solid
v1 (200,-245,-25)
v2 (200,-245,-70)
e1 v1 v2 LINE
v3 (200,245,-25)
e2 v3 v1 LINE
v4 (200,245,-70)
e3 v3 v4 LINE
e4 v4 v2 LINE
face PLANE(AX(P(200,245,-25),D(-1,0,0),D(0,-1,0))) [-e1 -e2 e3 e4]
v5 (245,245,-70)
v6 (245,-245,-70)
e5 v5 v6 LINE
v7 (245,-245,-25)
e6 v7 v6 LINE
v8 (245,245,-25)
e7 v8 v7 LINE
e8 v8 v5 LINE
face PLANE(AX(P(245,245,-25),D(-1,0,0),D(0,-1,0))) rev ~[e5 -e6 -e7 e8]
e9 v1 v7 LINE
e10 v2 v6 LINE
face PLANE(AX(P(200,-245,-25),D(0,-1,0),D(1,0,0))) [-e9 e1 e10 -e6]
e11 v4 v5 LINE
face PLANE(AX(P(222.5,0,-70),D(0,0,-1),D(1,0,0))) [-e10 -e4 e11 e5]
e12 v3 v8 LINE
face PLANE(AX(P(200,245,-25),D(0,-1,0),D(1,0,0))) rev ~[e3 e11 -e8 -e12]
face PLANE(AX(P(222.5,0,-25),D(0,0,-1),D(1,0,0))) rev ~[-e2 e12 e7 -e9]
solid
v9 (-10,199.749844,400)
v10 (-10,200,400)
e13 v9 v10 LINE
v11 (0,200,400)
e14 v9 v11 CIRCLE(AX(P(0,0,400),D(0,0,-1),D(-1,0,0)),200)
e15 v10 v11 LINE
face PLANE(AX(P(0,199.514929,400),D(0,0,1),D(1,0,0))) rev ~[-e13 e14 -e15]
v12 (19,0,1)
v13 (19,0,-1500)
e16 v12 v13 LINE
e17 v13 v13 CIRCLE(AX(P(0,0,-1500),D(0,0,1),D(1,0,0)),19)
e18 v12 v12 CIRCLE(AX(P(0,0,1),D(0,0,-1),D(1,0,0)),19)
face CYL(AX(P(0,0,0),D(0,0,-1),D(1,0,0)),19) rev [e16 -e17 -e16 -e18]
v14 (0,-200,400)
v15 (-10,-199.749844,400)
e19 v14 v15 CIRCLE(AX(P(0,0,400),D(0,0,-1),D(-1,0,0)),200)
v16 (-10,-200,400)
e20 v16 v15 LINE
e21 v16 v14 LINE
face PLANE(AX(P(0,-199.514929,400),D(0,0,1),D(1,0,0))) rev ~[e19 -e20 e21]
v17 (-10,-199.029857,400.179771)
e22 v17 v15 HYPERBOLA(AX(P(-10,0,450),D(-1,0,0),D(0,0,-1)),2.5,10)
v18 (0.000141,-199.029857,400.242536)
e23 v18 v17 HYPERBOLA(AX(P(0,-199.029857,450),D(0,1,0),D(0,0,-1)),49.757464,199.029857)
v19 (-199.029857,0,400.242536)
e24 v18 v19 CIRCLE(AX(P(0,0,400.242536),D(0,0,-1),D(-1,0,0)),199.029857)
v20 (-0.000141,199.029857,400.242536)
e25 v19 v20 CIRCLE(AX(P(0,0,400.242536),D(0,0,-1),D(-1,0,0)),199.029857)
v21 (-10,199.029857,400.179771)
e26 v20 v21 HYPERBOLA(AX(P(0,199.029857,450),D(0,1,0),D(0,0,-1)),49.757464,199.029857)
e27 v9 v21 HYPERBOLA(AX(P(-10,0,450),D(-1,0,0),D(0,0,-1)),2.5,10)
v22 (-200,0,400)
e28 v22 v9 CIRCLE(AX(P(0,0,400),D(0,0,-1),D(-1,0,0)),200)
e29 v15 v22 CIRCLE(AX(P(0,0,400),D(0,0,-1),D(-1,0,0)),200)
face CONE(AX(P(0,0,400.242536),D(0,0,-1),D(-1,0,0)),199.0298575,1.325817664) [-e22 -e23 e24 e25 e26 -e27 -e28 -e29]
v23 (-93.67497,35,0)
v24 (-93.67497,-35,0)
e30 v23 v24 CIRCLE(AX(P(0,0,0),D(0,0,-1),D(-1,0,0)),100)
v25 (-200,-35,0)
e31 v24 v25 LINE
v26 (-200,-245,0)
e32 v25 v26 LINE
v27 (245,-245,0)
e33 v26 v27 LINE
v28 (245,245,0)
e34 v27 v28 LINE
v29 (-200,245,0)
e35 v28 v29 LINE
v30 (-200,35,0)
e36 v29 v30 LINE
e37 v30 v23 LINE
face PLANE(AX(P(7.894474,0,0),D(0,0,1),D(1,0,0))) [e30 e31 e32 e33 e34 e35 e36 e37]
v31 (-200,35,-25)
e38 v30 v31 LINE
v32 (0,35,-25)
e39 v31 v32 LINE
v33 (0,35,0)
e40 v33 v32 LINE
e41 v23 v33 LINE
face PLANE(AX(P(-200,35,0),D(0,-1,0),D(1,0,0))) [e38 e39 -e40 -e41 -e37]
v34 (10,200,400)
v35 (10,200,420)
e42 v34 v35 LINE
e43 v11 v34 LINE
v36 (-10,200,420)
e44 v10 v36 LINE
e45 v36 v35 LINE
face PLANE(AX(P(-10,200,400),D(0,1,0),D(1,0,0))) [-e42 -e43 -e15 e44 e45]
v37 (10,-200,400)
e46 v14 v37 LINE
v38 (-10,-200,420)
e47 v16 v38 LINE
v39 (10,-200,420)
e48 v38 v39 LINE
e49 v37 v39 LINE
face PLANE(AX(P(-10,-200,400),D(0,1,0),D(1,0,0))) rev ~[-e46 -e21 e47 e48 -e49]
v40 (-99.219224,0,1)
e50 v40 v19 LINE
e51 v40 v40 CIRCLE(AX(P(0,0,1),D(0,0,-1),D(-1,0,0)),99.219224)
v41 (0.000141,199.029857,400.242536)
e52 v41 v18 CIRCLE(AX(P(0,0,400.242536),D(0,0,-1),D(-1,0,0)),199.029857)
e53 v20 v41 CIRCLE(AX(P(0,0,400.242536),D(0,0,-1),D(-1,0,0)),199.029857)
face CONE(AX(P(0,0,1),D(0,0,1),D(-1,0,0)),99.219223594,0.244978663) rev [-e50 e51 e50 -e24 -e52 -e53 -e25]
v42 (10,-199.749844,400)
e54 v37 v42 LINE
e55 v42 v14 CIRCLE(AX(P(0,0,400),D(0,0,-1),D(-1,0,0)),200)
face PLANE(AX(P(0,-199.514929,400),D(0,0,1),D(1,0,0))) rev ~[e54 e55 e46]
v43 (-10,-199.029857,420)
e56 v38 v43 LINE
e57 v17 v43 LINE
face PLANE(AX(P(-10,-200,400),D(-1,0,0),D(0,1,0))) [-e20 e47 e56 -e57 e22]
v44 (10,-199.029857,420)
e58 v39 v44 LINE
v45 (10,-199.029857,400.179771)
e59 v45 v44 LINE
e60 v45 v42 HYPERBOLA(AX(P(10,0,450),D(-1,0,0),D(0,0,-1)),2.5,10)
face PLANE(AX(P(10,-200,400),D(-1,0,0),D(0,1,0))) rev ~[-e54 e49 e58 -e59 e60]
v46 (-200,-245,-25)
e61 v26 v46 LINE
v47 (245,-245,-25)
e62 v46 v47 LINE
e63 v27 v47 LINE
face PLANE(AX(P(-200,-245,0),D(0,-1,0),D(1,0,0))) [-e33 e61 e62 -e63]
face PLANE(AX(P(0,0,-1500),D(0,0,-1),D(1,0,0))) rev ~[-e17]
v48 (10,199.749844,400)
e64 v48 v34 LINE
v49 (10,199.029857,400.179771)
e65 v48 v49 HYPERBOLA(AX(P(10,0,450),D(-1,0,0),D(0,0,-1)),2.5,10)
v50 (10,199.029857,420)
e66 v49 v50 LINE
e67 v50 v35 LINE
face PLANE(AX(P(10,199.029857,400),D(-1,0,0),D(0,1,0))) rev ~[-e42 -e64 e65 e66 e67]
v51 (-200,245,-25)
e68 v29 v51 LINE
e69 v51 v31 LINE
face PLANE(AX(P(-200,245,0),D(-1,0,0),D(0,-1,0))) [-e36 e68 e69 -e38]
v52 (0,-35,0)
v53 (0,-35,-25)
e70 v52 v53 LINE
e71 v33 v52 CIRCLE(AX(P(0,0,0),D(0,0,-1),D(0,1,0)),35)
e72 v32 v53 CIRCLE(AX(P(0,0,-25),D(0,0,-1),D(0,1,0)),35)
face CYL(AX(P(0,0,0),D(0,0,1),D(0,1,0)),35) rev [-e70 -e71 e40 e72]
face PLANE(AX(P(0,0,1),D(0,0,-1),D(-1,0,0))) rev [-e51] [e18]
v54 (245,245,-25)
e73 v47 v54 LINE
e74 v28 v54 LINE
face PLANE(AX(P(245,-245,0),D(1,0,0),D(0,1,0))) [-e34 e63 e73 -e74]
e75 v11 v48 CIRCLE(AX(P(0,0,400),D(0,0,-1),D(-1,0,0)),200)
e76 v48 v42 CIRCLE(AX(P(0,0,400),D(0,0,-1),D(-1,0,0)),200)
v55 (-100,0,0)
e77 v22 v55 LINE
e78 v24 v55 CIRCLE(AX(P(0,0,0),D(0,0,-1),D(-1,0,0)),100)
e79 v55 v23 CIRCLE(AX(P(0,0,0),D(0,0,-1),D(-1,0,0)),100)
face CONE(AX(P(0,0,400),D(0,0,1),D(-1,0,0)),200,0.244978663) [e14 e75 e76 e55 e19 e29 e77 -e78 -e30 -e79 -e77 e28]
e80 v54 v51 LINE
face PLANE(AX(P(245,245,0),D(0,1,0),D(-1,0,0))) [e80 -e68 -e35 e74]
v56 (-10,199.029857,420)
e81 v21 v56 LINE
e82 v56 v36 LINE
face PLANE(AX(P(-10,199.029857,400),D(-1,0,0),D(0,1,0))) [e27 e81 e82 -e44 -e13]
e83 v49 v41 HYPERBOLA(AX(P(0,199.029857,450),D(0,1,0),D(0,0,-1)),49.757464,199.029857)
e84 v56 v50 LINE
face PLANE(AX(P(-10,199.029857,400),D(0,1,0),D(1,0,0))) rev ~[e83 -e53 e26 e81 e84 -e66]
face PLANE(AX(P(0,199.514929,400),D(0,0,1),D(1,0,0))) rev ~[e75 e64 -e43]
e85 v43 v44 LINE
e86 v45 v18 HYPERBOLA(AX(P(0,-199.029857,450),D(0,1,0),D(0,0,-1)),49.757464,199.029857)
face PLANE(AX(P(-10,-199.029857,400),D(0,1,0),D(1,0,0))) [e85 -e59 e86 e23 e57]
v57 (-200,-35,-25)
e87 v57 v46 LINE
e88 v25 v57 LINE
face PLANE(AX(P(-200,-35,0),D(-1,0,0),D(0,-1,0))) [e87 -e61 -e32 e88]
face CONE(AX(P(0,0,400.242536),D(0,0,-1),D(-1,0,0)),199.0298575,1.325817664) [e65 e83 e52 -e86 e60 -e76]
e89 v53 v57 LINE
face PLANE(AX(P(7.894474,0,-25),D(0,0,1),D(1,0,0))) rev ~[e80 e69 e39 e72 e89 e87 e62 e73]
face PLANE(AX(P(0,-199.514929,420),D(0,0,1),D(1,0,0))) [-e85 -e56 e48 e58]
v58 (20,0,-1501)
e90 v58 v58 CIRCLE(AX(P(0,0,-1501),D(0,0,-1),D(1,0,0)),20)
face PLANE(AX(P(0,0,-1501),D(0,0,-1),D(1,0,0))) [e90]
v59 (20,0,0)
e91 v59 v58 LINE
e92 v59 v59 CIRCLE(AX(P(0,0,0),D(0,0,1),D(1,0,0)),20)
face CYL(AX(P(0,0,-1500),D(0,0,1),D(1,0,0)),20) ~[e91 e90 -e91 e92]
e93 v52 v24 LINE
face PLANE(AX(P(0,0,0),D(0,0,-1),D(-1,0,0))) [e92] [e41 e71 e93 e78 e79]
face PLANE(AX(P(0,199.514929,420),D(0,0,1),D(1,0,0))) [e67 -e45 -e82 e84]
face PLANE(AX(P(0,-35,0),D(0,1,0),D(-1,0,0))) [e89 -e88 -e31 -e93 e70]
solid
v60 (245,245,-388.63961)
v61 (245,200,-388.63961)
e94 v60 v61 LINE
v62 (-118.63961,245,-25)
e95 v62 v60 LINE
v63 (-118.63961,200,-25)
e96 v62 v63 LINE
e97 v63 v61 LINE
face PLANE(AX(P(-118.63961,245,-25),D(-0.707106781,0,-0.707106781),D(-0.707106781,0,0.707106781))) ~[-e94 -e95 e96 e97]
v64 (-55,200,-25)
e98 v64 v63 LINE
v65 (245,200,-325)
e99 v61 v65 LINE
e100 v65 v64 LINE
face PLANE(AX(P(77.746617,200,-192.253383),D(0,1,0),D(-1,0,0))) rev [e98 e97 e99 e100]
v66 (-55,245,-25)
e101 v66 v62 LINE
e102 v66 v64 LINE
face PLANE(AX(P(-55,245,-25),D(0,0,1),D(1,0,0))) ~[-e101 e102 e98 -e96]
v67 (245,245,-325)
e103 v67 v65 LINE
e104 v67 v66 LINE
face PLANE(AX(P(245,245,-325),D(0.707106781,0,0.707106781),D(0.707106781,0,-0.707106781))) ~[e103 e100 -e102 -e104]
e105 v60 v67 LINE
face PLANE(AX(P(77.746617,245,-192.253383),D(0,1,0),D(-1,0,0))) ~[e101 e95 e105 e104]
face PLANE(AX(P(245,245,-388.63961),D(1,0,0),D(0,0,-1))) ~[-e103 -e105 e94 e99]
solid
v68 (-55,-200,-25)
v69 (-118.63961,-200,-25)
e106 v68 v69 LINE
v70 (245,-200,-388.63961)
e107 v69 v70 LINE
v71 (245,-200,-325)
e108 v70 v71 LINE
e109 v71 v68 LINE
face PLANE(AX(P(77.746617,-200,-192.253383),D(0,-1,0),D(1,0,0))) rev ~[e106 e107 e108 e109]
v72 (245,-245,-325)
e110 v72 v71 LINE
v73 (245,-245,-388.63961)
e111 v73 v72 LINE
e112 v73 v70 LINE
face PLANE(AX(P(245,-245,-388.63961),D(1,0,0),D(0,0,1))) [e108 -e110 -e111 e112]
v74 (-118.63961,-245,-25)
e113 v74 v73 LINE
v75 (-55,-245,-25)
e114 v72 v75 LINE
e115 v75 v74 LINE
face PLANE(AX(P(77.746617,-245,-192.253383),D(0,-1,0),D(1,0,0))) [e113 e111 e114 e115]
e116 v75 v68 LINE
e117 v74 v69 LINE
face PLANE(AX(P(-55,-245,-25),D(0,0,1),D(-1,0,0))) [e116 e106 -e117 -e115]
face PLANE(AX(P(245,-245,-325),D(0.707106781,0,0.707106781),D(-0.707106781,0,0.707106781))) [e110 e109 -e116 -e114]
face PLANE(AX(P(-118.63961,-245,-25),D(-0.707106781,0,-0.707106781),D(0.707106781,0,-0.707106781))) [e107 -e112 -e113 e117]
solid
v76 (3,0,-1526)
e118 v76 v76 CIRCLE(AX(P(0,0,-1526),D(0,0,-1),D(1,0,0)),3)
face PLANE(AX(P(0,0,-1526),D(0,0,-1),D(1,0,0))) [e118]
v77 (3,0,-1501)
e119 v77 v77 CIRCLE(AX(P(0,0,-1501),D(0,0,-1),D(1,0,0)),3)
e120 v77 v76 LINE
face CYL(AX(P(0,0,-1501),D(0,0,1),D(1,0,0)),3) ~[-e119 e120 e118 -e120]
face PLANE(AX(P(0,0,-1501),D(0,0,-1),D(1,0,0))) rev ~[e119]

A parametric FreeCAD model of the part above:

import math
import FreeCAD as App
import Part
import Sketcher

V = App.Vector


def add_polygon(sketch, points):
    """Adds a closed chain of lines whose ends are joined by coincident constraints."""
    first, n = sketch.GeometryCount, len(points)
    for a, b in zip(points, points[1:] + points[:1]):
        sketch.addGeometry(Part.LineSegment(App.Vector(*a, 0), App.Vector(*b, 0)), False)
    for i in range(n):
        sketch.addConstraint(Sketcher.Constraint("Coincident", first + i, 2, first + (i + 1) % n, 1))

doc = App.newDocument("Part")
body = doc.addObject("PartDesign::Body", "Body")

sketch1 = body.newObject("Sketcher::SketchObject", "Sketch")
sketch1.AttachmentSupport = (doc.getObject("XZ_Plane"), [""])
sketch1.MapMode = "FlatFace"
add_polygon(sketch1, [(-199.029857, 400.242536), (-200, 400), (-100, 0), (0, 0), (0, 1), (-99.219224, 1)])
sketch1.addConstraint([
    Sketcher.Constraint("Horizontal", 2),
    Sketcher.Constraint("Vertical", 3),
    Sketcher.Constraint("Horizontal", 4),
    Sketcher.Constraint("Coincident", 2, 2, -1, 1),
    Sketcher.Constraint("Perpendicular", 0, 1),
    Sketcher.Constraint("Parallel", 1, 5),
    Sketcher.Constraint("DistanceX", 2, 1, 2, 2, 100.0),
    Sketcher.Constraint("DistanceY", 3, 1, 3, 2, 1.0),
    Sketcher.Constraint("Distance", 0, 1.0),
    Sketcher.Constraint("DistanceX", 0, 2, -1, 1, 200.0),
    Sketcher.Constraint("DistanceY", -1, 1, 0, 2, 400.0),
])
revolution = body.newObject("PartDesign::Revolution", "Revolution")
revolution.Profile = sketch1
revolution.ReferenceAxis = (sketch1, ["V_Axis"])
revolution.Angle = 360

sketch2 = body.newObject("Sketcher::SketchObject", "Sketch001")
sketch2.AttachmentSupport = (doc.getObject("XY_Plane"), [""])
sketch2.MapMode = "FlatFace"
sketch2.addGeometry([
    Part.Circle(V(0, 0, 0), V(0, 0, 1), 20),
    Part.Circle(V(0, 0, 0), V(0, 0, 1), 19),
], False)
sketch2.addConstraint([
    Sketcher.Constraint("Coincident", 0, 3, -1, 1),
    Sketcher.Constraint("Coincident", 1, 3, -1, 1),
    Sketcher.Constraint("Diameter", 0, 40.0),
    Sketcher.Constraint("Diameter", 1, 38.0),
])
pad1 = body.newObject("PartDesign::Pad", "Pad")
pad1.Profile = sketch2
pad1.Length = 1500
pad1.Reversed = True

sketch3 = body.newObject("Sketcher::SketchObject", "Sketch002")
sketch3.AttachmentSupport = (doc.getObject("XY_Plane"), [""])
sketch3.MapMode = "FlatFace"
sketch3.addGeometry(Part.Circle(V(0, 0, 0), V(0, 0, 1), 19), False)
sketch3.addConstraint([
    Sketcher.Constraint("Coincident", 0, 3, -1, 1),
    Sketcher.Constraint("Diameter", 0, 38.0),
])
pocket1 = body.newObject("PartDesign::Pocket", "Pocket")
pocket1.Profile = sketch3
pocket1.Type = "ThroughAll"
pocket1.Reversed = True

sketch4 = body.newObject("Sketcher::SketchObject", "Sketch003")
sketch4.AttachmentSupport = (doc.getObject("XY_Plane"), [""])
sketch4.MapMode = "FlatFace"
sketch4.AttachmentOffset = App.Placement(V(0, 0, 400), App.Rotation())
add_polygon(sketch4, [(-10, -199.029857), (-10, -200), (10, -200), (10, -199.029857)])
add_polygon(sketch4, [(-10, 200), (-10, 199.029857), (10, 199.029857), (10, 200)])
sketch4.addConstraint([
    Sketcher.Constraint("Vertical", 0),
    Sketcher.Constraint("Horizontal", 1),
    Sketcher.Constraint("Vertical", 2),
    Sketcher.Constraint("Horizontal", 3),
    Sketcher.Constraint("Vertical", 4),
    Sketcher.Constraint("Horizontal", 5),
    Sketcher.Constraint("Vertical", 6),
    Sketcher.Constraint("Horizontal", 7),
    Sketcher.Constraint("Symmetric", 2, 2, 4, 2, -1, 1),
    Sketcher.Constraint("Symmetric", 0, 2, 6, 2, -1, 1),
    Sketcher.Constraint("Vertical", 3, 2, 4, 2),
    Sketcher.Constraint("DistanceX", 1, 1, 1, 2, 20.0),
    Sketcher.Constraint("DistanceY", 0, 2, -1, 1, 200.0),
    Sketcher.Constraint("DistanceY", 0, 2, 0, 1, 0.970143),
])
pad2 = body.newObject("PartDesign::Pad", "Pad001")
pad2.Profile = sketch4
pad2.Length = 20

sketch5 = body.newObject("Sketcher::SketchObject", "Sketch004")
sketch5.AttachmentSupport = (doc.getObject("XY_Plane"), [""])
sketch5.MapMode = "FlatFace"
sketch5.AttachmentOffset = App.Placement(V(0, 0, -1500), App.Rotation())
sketch5.addGeometry(Part.Circle(V(0, 0, 0), V(0, 0, 1), 20), False)
sketch5.addConstraint([
    Sketcher.Constraint("Coincident", 0, 3, -1, 1),
    Sketcher.Constraint("Diameter", 0, 40.0),
])
pad3 = body.newObject("PartDesign::Pad", "Pad002")
pad3.Profile = sketch5
pad3.Length = 1
pad3.Reversed = True

sketch6 = body.newObject("Sketcher::SketchObject", "Sketch005")
sketch6.AttachmentSupport = (doc.getObject("XY_Plane"), [""])
sketch6.MapMode = "FlatFace"
sketch6.addGeometry([
    Part.LineSegment(V(-200, -245, 0), V(245, -245, 0)),
    Part.LineSegment(V(245, -245, 0), V(245, 245, 0)),
    Part.LineSegment(V(245, 245, 0), V(-200, 245, 0)),
    Part.LineSegment(V(-200, 245, 0), V(-200, 35, 0)),
    Part.LineSegment(V(-200, 35, 0), V(0, 35, 0)),
    Part.ArcOfCircle(Part.Circle(V(0, 0, 0), V(0, 0, 1), 35), math.radians(-90), math.radians(90)),
    Part.LineSegment(V(0, -35, 0), V(-200, -35, 0)),
    Part.LineSegment(V(-200, -35, 0), V(-200, -245, 0)),
], False)
sketch6.addConstraint([
    Sketcher.Constraint("Coincident", 0, 2, 1, 1),
    Sketcher.Constraint("Coincident", 1, 2, 2, 1),
    Sketcher.Constraint("Coincident", 2, 2, 3, 1),
    Sketcher.Constraint("Coincident", 3, 2, 4, 1),
    Sketcher.Constraint("Tangent", 4, 2, 5, 2),
    Sketcher.Constraint("Tangent", 5, 1, 6, 1),
    Sketcher.Constraint("Coincident", 6, 2, 7, 1),
    Sketcher.Constraint("Coincident", 7, 2, 0, 1),
    Sketcher.Constraint("Horizontal", 0),
    Sketcher.Constraint("Vertical", 1),
    Sketcher.Constraint("Horizontal", 2),
    Sketcher.Constraint("Vertical", 3),
    Sketcher.Constraint("Horizontal", 4),
    Sketcher.Constraint("Horizontal", 6),
    Sketcher.Constraint("Vertical", 7),
    Sketcher.Constraint("Coincident", 5, 3, -1, 1),
    Sketcher.Constraint("Symmetric", 2, 2, 7, 2, -1),
    Sketcher.Constraint("Radius", 5, 35.0),
    Sketcher.Constraint("DistanceX", 0, 1, 0, 2, 445.0),
    Sketcher.Constraint("DistanceX", 4, 1, 4, 2, 200.0),
    Sketcher.Constraint("DistanceY", 1, 1, 1, 2, 490.0),
])
pad4 = body.newObject("PartDesign::Pad", "Pad003")
pad4.Profile = sketch6
pad4.Length = 25
pad4.Reversed = True
body2 = doc.addObject("PartDesign::Body", "Body001")

sketch7 = body2.newObject("Sketcher::SketchObject", "Sketch006")
sketch7.AttachmentSupport = (doc.getObject("XY_Plane001"), [""])
sketch7.MapMode = "FlatFace"
sketch7.AttachmentOffset = App.Placement(V(0, 0, -1501), App.Rotation())
sketch7.addGeometry(Part.Circle(V(0, 0, 0), V(0, 0, 1), 3), False)
sketch7.addConstraint([
    Sketcher.Constraint("Coincident", 0, 3, -1, 1),
    Sketcher.Constraint("Diameter", 0, 6.0),
])
pad5 = body2.newObject("PartDesign::Pad", "Pad004")
pad5.Profile = sketch7
pad5.Length = 25
pad5.Reversed = True
body3 = doc.addObject("PartDesign::Body", "Body002")

sketch8 = body3.newObject("Sketcher::SketchObject", "Sketch007")
sketch8.AttachmentSupport = (doc.getObject("XY_Plane002"), [""])
sketch8.MapMode = "FlatFace"
sketch8.AttachmentOffset = App.Placement(V(0, 0, -25), App.Rotation())
add_polygon(sketch8, [(200, -245), (200, 245), (245, 245), (245, -245)])
sketch8.addConstraint([
    Sketcher.Constraint("Vertical", 0),
    Sketcher.Constraint("Horizontal", 1),
    Sketcher.Constraint("Vertical", 2),
    Sketcher.Constraint("Horizontal", 3),
    Sketcher.Constraint("DistanceX", 1, 1, 1, 2, 45.0),
    Sketcher.Constraint("DistanceY", 0, 1, 0, 2, 490.0),
    Sketcher.Constraint("DistanceX", -1, 1, 0, 2, 200.0),
    Sketcher.Constraint("DistanceY", -1, 1, 0, 2, 245.0),
])
pad6 = body3.newObject("PartDesign::Pad", "Pad005")
pad6.Profile = sketch8
pad6.Length = 45
pad6.Reversed = True
body4 = doc.addObject("PartDesign::Body", "Body003")

sketch9 = body4.newObject("Sketcher::SketchObject", "Sketch008")
sketch9.AttachmentSupport = (doc.getObject("XZ_Plane003"), [""])
sketch9.MapMode = "FlatFace"
sketch9.AttachmentOffset = App.Placement(V(0, 0, 245), App.Rotation())
add_polygon(sketch9, [(-55, -25), (-118.63961, -25), (245, -388.63961), (245, -325)])
sketch9.addConstraint([
    Sketcher.Constraint("Horizontal", 0),
    Sketcher.Constraint("Vertical", 2),
    Sketcher.Constraint("Parallel", 1, 3),
    Sketcher.Constraint("Equal", 0, 2),
    Sketcher.Constraint("DistanceY", 0, 2, -1, 1, 25.0),
    Sketcher.Constraint("DistanceX", -1, 1, 1, 2, 245.0),
    Sketcher.Constraint("DistanceY", 2, 2, -1, 1, 325.0),
    Sketcher.Constraint("DistanceX", 0, 2, 0, 1, 63.63961),
])
pad7 = body4.newObject("PartDesign::Pad", "Pad006")
pad7.Profile = sketch9
pad7.Length = 45
pad7.Reversed = True
body5 = doc.addObject("PartDesign::Body", "Body004")
doc.recompute()

mirroring = doc.addObject("Part::Mirroring", "Mirroring")
mirroring.Source = body4
mirroring.Base = V(0, 0, 0)
mirroring.Normal = V(0, -1, 0)
body5.BaseFeature = mirroring
doc.recompute()
mirroring.Visibility = False

doc.recompute()
